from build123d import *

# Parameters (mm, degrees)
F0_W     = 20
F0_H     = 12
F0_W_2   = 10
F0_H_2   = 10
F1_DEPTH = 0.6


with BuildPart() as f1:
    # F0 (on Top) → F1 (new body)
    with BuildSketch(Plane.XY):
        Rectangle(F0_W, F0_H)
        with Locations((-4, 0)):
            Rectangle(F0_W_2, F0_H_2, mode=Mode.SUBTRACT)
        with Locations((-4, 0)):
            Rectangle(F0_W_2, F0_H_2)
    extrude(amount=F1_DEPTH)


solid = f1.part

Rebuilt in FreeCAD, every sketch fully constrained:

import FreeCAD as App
import Part
import Sketcher
from FreeCAD import Vector

doc = App.newDocument("Part")
body = doc.addObject("PartDesign::Body", "Body")

# Sketch on XY plane
sketch1 = doc.addObject("Sketcher::SketchObject", "Sketch")
body.addObject(sketch1)
sketch1.AttachmentSupport = (doc.XY_Plane, [""])
sketch1.MapMode = "FlatFace"
sketch1.addGeometry([
    Part.LineSegment(Vector(-10, 6, 0), Vector(-10, -6, 0)),
    Part.LineSegment(Vector(-10, -6, 0), Vector(10, -6, 0)),
    Part.LineSegment(Vector(10, -6, 0), Vector(10, 6, 0)),
    Part.LineSegment(Vector(10, 6, 0), Vector(-10, 6, 0)),
], False)
sketch1.addConstraint([
    Sketcher.Constraint("Coincident", 0, 2, 1, 1),
    Sketcher.Constraint("Coincident", 1, 2, 2, 1),
    Sketcher.Constraint("Coincident", 2, 2, 3, 1),
    Sketcher.Constraint("Coincident", 3, 2, 0, 1),
    Sketcher.Constraint("Vertical", 0),
    Sketcher.Constraint("Horizontal", 1),
    Sketcher.Constraint("Vertical", 2),
    Sketcher.Constraint("Horizontal", 3),
    Sketcher.Constraint("Symmetric", 0, 2, 2, 2, -1, 1),
    Sketcher.Constraint("DistanceX", 1, 1, 1, 2, 20.0),
    Sketcher.Constraint("DistanceY", 0, 2, 0, 1, 12.0),
])
pad1 = doc.addObject("PartDesign::Pad", "Pad")
body.addObject(pad1)
pad1.Profile = sketch1
pad1.Length = 0.6

doc.recompute()
